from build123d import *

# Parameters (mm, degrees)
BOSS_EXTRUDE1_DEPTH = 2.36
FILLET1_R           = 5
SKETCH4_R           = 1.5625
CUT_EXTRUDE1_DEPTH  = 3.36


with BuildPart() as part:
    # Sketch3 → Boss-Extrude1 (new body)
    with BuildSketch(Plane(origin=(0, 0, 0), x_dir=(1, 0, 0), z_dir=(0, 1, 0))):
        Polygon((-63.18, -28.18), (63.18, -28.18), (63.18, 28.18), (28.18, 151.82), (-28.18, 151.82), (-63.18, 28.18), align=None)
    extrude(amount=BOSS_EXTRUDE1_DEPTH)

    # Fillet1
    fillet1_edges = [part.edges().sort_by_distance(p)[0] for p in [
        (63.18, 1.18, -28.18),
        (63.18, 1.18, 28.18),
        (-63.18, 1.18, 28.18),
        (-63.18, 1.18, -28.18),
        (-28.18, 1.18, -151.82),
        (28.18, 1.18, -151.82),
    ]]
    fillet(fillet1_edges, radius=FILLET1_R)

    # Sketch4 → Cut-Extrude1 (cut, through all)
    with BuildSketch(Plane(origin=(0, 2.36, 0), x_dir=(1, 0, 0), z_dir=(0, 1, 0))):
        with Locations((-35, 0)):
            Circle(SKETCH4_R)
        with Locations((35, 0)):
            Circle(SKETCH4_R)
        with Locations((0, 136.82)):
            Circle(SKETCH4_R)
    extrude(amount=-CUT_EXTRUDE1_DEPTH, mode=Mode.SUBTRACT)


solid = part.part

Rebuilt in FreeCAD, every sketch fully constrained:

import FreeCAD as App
import Part
import Sketcher
from FreeCAD import Vector
Q = App.Units.Quantity


def edges_at(feature, points):
    """Names of the edges that pass closest to the given points."""
    edges = feature.Shape.Edges
    near = lambda p: min(range(len(edges)), key=lambda i: edges[i].distToShape(Part.Vertex(*p))[0])
    return sorted({f"Edge{near(p) + 1}" for p in points})

doc = App.newDocument("Part")
params = doc.addObject("Spreadsheet::Sheet", "Params")
for row, (alias, value) in enumerate([
    ("sketch1_width", "126.36 mm"),
    ("pad1_length", "2.36 mm"),
    ("fillet_radius", "5 mm"),
], start=1):
    params.set(f"A{row}", alias)
    params.set(f"B{row}", "=" + value)
    params.setAlias(f"B{row}", alias)

body = doc.addObject("PartDesign::Body", "Body")

# Sketch on XZ plane
sketch1 = doc.addObject("Sketcher::SketchObject", "Sketch")
body.addObject(sketch1)
sketch1.AttachmentSupport = (doc.XZ_Plane, [""])
sketch1.MapMode = "FlatFace"
sketch1.addGeometry([
    Part.LineSegment(Vector(-63, 28, 0), Vector(63, 28, 0)),  # 0
    Part.LineSegment(Vector(63, 28, 0), Vector(63, -28, 0)),  # 1
    Part.LineSegment(Vector(63, -28, 0), Vector(28, -152, 0)),  # 2
    Part.LineSegment(Vector(28, -152, 0), Vector(-28, -152, 0)),  # 3
    Part.LineSegment(Vector(-28, -152, 0), Vector(-63, -28, 0)),  # 4
    Part.LineSegment(Vector(-63, -28, 0), Vector(-63, 28, 0)),  # 5
], False)
sketch1.addConstraint([
    Sketcher.Constraint("Coincident", 0, 2, 1, 1),
    Sketcher.Constraint("Coincident", 1, 2, 2, 1),
    Sketcher.Constraint("Coincident", 2, 2, 3, 1),
    Sketcher.Constraint("Coincident", 3, 2, 4, 1),
    Sketcher.Constraint("Coincident", 4, 2, 5, 1),
    Sketcher.Constraint("Coincident", 5, 2, 0, 1),
    Sketcher.Constraint("Horizontal", 0),
    Sketcher.Constraint("Vertical", 1),
    Sketcher.Constraint("Horizontal", 3),
    Sketcher.Constraint("Vertical", 5),
    Sketcher.Constraint("Symmetric", 0, 2, 4, 2, -1, 1),
    Sketcher.Constraint("Horizontal", 1, 2, 4, 2),
    Sketcher.Constraint("Equal", 3, 1),
    Sketcher.Constraint("Equal", 2, 4),
    Sketcher.Constraint("DistanceX", 2, 2, 1, 2, Q("35 mm")),
    Sketcher.Constraint("DistanceY", 2, 2, 0, 2, Q("180 mm")),
    Sketcher.Constraint("DistanceX", 0, 1, 0, 2, Q("126.36 mm")),
])
sketch1.setExpression("Constraints[16]", "Params.sketch1_width")
pad1 = doc.addObject("PartDesign::Pad", "Pad")
body.addObject(pad1)
pad1.Profile = sketch1
pad1.setExpression("Length", "Params.pad1_length")
pad1.Reversed = True
doc.recompute()

fillet = doc.addObject("PartDesign::Fillet", "Fillet")
body.addObject(fillet)
fillet.Base = (pad1, edges_at(pad1, [
    (63.18, 1.18, -28.18),
    (63.18, 1.18, 28.18),
    (-63.18, 1.18, 28.18),
    (-63.18, 1.18, -28.18),
    (-28.18, 1.18, -151.82),
    (28.18, 1.18, -151.82),
]))
fillet.setExpression("Radius", "Params.fillet_radius")

# Sketch on XZ plane
sketch2 = doc.addObject("Sketcher::SketchObject", "Sketch001")
body.addObject(sketch2)
sketch2.AttachmentSupport = (doc.XZ_Plane, [""])
sketch2.MapMode = "FlatFace"
sketch2.AttachmentOffset = App.Placement(Vector(0, 0, -2.36), App.Rotation())
sketch2.addGeometry([
    Part.Circle(Vector(-35, 0, 0), Vector(0, 0, 1), 1.6),
    Part.Circle(Vector(35, 0, 0), Vector(0, 0, 1), 1.6),
    Part.Circle(Vector(0, -136.8, 0), Vector(0, 0, 1), 1.6),
], False)
sketch2.addConstraint([
    Sketcher.Constraint("Equal", 0, 1),
    Sketcher.Constraint("Equal", 1, 2),
    Sketcher.Constraint("Symmetric", 0, 3, 1, 3, -1, 1),
    Sketcher.Constraint("PointOnObject", 0, 3, -1),
    Sketcher.Constraint("PointOnObject", 2, 3, -2),
    Sketcher.Constraint("Diameter", 0, Q("3.125 mm")),
    Sketcher.Constraint("DistanceX", 0, 3, -1, 1, Q("35 mm")),
    Sketcher.Constraint("DistanceY", 2, 3, -1, 1, Q("136.82 mm")),
])
pocket1 = doc.addObject("PartDesign::Pocket", "Pocket")
body.addObject(pocket1)
pocket1.Profile = sketch2
pocket1.Type = "ThroughAll"
pocket1.Reversed = True

doc.recompute()
